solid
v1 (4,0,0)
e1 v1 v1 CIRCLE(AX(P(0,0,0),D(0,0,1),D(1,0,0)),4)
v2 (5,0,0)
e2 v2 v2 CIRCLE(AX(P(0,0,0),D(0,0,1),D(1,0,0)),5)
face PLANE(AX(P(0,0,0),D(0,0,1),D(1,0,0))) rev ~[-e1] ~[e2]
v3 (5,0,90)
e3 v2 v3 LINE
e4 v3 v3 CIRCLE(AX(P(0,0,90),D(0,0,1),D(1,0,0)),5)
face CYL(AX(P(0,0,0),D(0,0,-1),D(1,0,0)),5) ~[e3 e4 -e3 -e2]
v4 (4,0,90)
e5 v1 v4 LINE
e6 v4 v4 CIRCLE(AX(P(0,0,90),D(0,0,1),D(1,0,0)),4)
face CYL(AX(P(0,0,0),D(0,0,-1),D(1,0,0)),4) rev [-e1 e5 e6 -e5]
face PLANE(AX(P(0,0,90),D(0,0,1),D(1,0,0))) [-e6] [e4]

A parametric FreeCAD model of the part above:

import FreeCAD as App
import Part
import Sketcher

V = App.Vector
Q = App.Units.Quantity

doc = App.newDocument("Part")
body = doc.addObject("PartDesign::Body", "Body")

sketch1 = body.newObject("Sketcher::SketchObject", "Sketch")
sketch1.AttachmentSupport = (doc.getObject("XY_Plane"), [""])
sketch1.MapMode = "FlatFace"
sketch1.addGeometry([
    Part.Circle(V(0, 0, 0), V(0, 0, 1), 5),
    Part.Circle(V(0, 0, 0), V(0, 0, 1), 4),
], False)
sketch1.addConstraint([
    Sketcher.Constraint("Coincident", 0, 3, -1, 1),
    Sketcher.Constraint("Coincident", 1, 3, -1, 1),
    Sketcher.Constraint("Diameter", 0, Q("10 mm")),
    Sketcher.Constraint("Diameter", 1, Q("8 mm")),
])
pad1 = body.newObject("PartDesign::Pad", "Pad")
pad1.Profile = sketch1
pad1.Length = 90

doc.recompute()
